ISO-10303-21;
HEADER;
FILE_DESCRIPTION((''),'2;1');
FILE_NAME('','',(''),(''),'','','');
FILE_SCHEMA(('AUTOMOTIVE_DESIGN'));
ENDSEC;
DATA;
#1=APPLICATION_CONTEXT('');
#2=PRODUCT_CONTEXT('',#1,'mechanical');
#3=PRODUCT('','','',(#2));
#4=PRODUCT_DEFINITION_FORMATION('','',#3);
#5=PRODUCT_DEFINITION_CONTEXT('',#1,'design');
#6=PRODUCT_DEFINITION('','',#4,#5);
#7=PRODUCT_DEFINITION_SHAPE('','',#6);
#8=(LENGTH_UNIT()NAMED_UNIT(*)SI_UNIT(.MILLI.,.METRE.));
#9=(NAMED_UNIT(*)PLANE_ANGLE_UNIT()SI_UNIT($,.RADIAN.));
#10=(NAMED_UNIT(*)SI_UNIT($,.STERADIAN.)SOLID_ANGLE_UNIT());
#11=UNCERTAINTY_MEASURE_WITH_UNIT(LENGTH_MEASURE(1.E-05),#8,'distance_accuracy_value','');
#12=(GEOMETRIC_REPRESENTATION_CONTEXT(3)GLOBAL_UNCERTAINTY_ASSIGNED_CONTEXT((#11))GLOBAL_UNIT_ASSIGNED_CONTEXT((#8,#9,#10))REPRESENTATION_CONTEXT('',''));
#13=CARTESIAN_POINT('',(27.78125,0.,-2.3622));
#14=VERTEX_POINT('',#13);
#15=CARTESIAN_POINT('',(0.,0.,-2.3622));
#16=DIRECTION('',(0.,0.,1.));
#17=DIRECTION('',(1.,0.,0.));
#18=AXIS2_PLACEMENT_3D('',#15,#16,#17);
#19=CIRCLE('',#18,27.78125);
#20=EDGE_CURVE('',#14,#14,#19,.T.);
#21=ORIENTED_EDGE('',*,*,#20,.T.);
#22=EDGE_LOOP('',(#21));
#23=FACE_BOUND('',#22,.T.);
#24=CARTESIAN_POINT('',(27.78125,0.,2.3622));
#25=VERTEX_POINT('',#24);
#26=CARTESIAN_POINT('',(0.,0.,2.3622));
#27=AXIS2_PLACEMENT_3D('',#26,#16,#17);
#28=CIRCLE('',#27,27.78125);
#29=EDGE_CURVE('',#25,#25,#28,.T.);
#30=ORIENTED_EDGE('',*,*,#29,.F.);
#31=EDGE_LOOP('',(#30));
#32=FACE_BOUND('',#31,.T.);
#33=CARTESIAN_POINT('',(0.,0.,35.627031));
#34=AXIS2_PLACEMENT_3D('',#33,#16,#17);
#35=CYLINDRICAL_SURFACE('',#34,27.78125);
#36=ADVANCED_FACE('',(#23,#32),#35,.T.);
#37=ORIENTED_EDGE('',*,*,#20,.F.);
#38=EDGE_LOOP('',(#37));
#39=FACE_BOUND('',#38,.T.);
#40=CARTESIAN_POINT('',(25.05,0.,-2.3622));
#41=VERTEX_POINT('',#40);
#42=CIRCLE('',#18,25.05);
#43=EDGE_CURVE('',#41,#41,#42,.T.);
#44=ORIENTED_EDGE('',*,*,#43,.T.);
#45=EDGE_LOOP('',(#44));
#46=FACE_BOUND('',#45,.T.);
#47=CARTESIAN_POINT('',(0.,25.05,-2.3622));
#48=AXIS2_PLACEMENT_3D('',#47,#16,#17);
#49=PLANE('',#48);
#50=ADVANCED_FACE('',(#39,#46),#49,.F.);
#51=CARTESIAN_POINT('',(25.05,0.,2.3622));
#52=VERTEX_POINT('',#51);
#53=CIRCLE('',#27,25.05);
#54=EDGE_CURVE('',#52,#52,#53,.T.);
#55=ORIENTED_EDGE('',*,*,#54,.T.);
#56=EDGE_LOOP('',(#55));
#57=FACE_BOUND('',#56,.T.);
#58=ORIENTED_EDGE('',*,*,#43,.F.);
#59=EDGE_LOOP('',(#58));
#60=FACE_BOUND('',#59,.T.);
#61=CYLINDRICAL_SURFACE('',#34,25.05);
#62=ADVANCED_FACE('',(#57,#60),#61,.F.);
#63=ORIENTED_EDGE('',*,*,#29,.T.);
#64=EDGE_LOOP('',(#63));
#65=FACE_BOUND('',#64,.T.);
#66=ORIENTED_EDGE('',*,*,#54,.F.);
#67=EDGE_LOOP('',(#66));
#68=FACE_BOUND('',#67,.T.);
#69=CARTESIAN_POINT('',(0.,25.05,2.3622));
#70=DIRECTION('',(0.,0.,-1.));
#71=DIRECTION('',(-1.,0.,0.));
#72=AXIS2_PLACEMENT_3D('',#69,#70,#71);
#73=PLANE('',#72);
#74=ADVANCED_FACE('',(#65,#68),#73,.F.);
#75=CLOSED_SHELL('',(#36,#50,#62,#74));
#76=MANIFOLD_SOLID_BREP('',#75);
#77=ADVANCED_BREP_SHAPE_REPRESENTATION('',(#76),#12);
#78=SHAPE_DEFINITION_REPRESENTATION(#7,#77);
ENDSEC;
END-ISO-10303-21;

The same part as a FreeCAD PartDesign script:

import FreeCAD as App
import Part
import Sketcher

V = App.Vector
Q = App.Units.Quantity

doc = App.newDocument("Part")
body = doc.addObject("PartDesign::Body", "Body")

# Sketch on YZ plane
sketch1 = doc.addObject("Sketcher::SketchObject", "Sketch")
body.addObject(sketch1)
sketch1.AttachmentSupport = (doc.YZ_Plane, [""])
sketch1.MapMode = "FlatFace"
sketch1.addGeometry([
    Part.LineSegment(V(27.78125, 2.3622, 0), V(25.05, 2.3622, 0)),
    Part.LineSegment(V(25.05, 2.3622, 0), V(25.05, -2.3622, 0)),
    Part.LineSegment(V(25.05, -2.3622, 0), V(27.78125, -2.3622, 0)),
    Part.LineSegment(V(27.78125, -2.3622, 0), V(27.78125, 2.3622, 0)),
], False)
sketch1.addConstraint([
    Sketcher.Constraint("Coincident", 0, 2, 1, 1),
    Sketcher.Constraint("Coincident", 1, 2, 2, 1),
    Sketcher.Constraint("Coincident", 2, 2, 3, 1),
    Sketcher.Constraint("Coincident", 3, 2, 0, 1),
    Sketcher.Constraint("Horizontal", 0),
    Sketcher.Constraint("Vertical", 1),
    Sketcher.Constraint("Horizontal", 2),
    Sketcher.Constraint("Vertical", 3),
    Sketcher.Constraint("DistanceY", 1, 2, 1, 1, Q("0.186 in")),
    Sketcher.Constraint("DistanceY", -1, 1, 0, 2, Q("0.093 in")),
    Sketcher.Constraint("DistanceX", -1, 1, 2, 2, Q("1.09375 in")),
    Sketcher.Constraint("DistanceX", 0, 2, 0, 1, Q("2.73125 mm")),
])
revolution = doc.addObject("PartDesign::Revolution", "Revolution")
body.addObject(revolution)
revolution.Profile = sketch1
revolution.ReferenceAxis = (sketch1, ["V_Axis"])
revolution.Angle = 360

doc.recompute()
